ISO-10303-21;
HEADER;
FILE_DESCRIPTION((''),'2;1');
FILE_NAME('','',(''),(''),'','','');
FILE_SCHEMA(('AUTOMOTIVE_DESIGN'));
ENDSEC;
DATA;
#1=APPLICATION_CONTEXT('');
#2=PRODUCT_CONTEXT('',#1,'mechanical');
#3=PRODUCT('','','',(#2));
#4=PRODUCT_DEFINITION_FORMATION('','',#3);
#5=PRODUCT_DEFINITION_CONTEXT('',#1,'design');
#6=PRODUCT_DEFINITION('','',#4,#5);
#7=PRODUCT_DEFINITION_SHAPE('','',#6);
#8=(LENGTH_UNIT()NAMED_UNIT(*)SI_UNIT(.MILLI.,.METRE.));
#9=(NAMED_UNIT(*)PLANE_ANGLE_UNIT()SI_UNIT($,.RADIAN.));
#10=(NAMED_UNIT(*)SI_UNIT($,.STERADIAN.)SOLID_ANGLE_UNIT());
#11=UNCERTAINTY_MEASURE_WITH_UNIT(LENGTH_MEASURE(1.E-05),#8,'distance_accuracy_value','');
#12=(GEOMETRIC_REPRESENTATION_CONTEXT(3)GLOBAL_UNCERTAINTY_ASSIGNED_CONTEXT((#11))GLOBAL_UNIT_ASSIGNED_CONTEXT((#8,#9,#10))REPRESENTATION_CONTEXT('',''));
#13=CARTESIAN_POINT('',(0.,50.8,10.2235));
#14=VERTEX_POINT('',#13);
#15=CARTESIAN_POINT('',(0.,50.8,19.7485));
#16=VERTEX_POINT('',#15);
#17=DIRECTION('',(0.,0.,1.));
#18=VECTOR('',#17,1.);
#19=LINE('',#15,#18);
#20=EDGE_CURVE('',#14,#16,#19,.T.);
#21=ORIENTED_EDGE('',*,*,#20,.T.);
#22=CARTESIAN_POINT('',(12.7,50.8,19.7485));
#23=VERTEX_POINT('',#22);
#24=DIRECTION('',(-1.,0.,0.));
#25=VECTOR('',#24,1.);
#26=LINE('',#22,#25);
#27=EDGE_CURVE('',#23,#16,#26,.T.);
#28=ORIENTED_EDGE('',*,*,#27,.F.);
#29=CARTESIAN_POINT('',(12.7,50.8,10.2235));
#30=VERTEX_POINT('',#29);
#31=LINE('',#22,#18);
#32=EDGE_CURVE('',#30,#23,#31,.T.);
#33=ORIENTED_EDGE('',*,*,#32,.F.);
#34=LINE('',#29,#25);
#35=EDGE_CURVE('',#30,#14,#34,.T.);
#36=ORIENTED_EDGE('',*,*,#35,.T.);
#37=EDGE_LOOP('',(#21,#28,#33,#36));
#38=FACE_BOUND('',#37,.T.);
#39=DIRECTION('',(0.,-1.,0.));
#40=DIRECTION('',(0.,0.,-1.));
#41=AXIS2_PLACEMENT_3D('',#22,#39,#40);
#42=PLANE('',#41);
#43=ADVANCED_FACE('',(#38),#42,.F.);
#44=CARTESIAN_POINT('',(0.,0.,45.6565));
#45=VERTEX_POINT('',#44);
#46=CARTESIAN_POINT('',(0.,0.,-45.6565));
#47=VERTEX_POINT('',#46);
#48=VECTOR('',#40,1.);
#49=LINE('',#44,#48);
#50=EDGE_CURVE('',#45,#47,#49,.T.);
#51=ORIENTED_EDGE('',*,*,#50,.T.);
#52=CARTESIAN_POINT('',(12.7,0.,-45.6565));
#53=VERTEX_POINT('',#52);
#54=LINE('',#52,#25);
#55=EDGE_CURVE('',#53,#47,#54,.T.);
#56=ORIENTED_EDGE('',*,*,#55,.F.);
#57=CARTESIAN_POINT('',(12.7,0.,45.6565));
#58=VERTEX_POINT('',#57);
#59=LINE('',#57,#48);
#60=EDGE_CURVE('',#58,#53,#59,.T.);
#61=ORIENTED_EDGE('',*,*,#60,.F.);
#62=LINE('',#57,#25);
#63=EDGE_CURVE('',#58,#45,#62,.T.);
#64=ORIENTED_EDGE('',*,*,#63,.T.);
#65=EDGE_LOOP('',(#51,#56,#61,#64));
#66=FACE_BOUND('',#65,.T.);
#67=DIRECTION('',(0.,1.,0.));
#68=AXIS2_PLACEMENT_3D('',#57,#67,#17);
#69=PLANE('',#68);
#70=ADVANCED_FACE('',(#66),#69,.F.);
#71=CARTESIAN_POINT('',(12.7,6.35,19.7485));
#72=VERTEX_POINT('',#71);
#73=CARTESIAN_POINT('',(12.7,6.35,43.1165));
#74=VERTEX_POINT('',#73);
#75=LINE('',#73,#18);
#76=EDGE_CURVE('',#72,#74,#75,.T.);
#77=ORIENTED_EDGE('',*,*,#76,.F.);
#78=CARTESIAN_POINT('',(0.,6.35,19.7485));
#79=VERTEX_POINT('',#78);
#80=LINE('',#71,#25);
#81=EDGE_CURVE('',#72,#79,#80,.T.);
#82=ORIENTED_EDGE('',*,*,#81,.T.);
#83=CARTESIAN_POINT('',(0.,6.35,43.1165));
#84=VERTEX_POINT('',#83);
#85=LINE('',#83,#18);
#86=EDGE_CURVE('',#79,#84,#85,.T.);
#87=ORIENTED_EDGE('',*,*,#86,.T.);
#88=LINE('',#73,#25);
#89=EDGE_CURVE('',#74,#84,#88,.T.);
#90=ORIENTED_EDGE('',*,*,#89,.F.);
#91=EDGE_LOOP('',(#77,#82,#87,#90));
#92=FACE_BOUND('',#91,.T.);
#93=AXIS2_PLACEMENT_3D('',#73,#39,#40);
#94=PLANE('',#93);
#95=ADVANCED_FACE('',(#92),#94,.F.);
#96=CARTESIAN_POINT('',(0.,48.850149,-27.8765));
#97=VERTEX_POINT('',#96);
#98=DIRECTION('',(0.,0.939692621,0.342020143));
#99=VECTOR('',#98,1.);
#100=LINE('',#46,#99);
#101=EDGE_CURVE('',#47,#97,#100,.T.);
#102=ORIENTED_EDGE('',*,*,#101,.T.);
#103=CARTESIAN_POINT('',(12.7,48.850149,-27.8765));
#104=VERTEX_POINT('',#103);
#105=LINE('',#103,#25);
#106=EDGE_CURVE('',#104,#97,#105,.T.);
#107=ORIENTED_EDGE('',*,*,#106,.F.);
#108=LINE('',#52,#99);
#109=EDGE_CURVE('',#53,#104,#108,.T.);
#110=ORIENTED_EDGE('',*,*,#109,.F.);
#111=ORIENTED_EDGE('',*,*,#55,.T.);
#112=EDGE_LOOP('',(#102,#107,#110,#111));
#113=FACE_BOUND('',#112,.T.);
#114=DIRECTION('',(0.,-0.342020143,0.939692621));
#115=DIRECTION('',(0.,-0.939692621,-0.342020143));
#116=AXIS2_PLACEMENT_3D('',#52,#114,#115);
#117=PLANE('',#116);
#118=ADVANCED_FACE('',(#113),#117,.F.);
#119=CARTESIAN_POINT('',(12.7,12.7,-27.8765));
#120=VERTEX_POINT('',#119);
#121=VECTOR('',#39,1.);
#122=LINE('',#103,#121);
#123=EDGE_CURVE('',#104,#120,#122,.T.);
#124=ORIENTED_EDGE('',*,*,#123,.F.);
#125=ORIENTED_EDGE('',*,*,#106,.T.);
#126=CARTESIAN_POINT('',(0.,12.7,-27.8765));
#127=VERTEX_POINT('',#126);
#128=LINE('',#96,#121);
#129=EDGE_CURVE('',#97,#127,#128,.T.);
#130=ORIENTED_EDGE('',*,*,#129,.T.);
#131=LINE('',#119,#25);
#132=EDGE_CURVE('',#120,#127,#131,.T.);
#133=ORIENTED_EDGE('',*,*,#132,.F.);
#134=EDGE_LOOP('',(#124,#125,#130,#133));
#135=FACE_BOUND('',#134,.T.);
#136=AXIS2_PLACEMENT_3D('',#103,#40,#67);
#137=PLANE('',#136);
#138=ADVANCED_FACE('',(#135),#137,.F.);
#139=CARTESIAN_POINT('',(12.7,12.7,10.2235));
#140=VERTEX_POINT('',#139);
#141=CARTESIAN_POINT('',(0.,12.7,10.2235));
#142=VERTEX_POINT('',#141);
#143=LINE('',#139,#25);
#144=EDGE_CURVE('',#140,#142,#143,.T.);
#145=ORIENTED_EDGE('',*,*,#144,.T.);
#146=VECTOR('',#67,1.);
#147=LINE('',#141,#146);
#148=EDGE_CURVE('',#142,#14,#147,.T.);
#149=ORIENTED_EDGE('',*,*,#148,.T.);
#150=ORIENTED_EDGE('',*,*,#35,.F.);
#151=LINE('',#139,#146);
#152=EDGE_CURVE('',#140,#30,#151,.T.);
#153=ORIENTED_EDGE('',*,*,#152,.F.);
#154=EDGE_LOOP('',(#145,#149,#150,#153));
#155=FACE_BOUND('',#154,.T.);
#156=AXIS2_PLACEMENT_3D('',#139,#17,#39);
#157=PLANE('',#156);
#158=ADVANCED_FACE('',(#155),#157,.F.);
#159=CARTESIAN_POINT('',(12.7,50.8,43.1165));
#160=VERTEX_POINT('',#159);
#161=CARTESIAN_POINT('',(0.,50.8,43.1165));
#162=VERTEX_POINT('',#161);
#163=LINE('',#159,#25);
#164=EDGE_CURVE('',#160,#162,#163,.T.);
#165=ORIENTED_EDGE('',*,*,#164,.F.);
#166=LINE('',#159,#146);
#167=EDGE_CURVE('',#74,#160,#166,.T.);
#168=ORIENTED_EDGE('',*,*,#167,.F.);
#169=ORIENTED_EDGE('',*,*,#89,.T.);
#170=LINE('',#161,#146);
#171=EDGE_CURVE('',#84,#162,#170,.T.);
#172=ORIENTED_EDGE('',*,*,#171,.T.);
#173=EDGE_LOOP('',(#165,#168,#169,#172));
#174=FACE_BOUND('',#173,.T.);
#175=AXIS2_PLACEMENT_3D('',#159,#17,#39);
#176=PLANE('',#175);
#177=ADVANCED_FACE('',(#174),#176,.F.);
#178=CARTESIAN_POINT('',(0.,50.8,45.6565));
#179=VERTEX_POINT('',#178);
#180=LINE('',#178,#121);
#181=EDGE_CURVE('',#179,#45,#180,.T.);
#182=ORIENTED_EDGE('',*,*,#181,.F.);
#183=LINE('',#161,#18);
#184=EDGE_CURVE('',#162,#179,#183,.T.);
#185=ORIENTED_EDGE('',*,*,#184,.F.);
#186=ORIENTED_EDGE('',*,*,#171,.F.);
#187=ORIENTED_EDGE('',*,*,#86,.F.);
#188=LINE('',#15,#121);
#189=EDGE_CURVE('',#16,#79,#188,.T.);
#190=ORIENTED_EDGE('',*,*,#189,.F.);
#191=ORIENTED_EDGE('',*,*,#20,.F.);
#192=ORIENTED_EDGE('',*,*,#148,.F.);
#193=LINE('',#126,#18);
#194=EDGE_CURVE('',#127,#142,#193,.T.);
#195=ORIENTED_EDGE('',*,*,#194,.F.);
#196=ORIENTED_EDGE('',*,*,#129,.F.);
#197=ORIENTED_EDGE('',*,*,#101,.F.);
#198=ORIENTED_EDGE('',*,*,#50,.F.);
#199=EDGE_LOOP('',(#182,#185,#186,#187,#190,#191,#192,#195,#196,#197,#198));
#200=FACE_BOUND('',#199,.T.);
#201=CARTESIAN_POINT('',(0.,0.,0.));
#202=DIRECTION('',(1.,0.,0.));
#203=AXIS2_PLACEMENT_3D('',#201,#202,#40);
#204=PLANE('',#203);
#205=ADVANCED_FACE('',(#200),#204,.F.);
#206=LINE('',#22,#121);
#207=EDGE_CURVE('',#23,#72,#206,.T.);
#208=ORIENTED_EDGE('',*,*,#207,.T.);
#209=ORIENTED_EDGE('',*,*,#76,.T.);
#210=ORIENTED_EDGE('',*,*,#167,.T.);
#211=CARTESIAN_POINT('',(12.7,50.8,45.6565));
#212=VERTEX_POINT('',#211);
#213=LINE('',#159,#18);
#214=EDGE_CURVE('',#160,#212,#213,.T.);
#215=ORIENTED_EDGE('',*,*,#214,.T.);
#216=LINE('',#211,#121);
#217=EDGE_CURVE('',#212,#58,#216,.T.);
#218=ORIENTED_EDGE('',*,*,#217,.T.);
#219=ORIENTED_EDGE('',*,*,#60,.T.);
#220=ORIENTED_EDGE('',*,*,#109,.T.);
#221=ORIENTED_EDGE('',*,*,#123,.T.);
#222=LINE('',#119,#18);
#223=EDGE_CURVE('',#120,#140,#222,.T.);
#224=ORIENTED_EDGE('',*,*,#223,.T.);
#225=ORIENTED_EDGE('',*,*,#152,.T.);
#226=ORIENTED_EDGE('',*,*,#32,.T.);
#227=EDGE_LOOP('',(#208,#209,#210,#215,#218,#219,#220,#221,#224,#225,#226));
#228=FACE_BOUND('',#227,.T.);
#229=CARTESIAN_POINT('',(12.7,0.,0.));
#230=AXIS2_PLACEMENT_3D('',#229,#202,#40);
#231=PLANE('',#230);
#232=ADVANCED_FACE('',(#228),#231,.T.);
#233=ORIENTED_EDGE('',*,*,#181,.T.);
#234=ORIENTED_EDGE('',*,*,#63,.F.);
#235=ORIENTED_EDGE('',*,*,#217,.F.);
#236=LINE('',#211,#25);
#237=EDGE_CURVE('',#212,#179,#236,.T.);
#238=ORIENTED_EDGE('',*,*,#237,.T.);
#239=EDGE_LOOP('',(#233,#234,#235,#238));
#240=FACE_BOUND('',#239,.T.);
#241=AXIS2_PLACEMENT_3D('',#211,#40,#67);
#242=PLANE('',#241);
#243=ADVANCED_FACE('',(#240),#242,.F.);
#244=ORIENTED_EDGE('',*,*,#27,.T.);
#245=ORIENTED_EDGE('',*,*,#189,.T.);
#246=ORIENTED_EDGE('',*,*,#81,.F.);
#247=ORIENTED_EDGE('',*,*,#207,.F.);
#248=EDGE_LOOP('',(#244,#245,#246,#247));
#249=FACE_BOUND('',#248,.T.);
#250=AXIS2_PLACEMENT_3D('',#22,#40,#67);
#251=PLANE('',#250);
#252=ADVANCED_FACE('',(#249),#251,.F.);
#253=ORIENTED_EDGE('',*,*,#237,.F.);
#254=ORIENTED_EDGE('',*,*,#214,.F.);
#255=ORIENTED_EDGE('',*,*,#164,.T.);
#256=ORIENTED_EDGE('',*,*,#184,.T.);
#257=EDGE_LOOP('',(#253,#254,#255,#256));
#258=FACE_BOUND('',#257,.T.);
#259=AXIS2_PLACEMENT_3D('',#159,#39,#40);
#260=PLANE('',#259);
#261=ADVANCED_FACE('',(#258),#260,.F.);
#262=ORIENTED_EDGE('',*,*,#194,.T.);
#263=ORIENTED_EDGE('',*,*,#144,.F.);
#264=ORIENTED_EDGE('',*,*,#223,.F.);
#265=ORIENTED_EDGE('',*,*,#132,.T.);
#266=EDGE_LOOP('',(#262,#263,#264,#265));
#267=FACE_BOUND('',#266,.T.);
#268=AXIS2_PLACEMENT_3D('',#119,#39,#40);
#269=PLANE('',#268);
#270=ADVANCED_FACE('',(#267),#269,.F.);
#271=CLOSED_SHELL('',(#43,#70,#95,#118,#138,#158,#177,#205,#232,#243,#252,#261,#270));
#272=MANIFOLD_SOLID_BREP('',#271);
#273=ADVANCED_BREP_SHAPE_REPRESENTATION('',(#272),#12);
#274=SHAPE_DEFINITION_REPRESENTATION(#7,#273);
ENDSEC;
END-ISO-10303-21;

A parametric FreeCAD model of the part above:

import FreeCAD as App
import Part
import Sketcher
Q = App.Units.Quantity


def add_polygon(sketch, points):
    """Adds a closed chain of lines whose ends are joined by coincident constraints."""
    first, n = sketch.GeometryCount, len(points)
    for a, b in zip(points, points[1:] + points[:1]):
        sketch.addGeometry(Part.LineSegment(App.Vector(*a, 0), App.Vector(*b, 0)), False)
    for i in range(n):
        sketch.addConstraint(Sketcher.Constraint("Coincident", first + i, 2, first + (i + 1) % n, 1))

doc = App.newDocument("Part")
body = doc.addObject("PartDesign::Body", "Body")

# Sketch on YZ plane
sketch1 = doc.addObject("Sketcher::SketchObject", "Sketch")
body.addObject(sketch1)
sketch1.AttachmentSupport = (doc.YZ_Plane, [""])
sketch1.MapMode = "FlatFace"
add_polygon(sketch1, [(0, 45.7), (0, -45.7), (48.9, -27.9), (12.7, -27.9), (12.7, 10.2), (50.8, 10.2), (50.8, 19.7), (6.3, 19.7), (6.3, 43.1), (50.8, 43.1), (50.8, 45.7)])  # lines 0-10
sketch1.addConstraint([
    Sketcher.Constraint("Vertical", 0),
    Sketcher.Constraint("Horizontal", 2),
    Sketcher.Constraint("Vertical", 3),
    Sketcher.Constraint("Horizontal", 4),
    Sketcher.Constraint("Vertical", 5),
    Sketcher.Constraint("Horizontal", 6),
    Sketcher.Constraint("Vertical", 7),
    Sketcher.Constraint("Horizontal", 8),
    Sketcher.Constraint("Vertical", 9),
    Sketcher.Constraint("Horizontal", 10),
    Sketcher.Constraint("Symmetric", 0, 2, 10, 2, -1, 1),
    Sketcher.Constraint("Vertical", 5, 2, 8, 2),
    Sketcher.Constraint("Equal", 4, 3),
    Sketcher.Constraint("DistanceX", 10, 2, 10, 1, Q("2 in")),
    Sketcher.Constraint("DistanceX", 4, 1, 4, 2, Q("1.5 in")),
    Sketcher.Constraint("DistanceY", 9, 1, 9, 2, Q("0.1 in")),
    Sketcher.Constraint("Angle", 1, Q("20 deg")),
    Sketcher.Constraint("DistanceX", 6, 2, 6, 1, Q("1.75 in")),
    Sketcher.Constraint("DistanceY", 7, 1, 7, 2, Q("0.92 in")),
    Sketcher.Constraint("DistanceY", 0, 2, 1, 2, Q("0.7 in")),
    Sketcher.Constraint("DistanceY", 0, 2, 0, 1, Q("3.595 in")),
])
pad1 = doc.addObject("PartDesign::Pad", "Pad")
body.addObject(pad1)
pad1.Profile = sketch1
pad1.Length = Q("0.5 in")

doc.recompute()
